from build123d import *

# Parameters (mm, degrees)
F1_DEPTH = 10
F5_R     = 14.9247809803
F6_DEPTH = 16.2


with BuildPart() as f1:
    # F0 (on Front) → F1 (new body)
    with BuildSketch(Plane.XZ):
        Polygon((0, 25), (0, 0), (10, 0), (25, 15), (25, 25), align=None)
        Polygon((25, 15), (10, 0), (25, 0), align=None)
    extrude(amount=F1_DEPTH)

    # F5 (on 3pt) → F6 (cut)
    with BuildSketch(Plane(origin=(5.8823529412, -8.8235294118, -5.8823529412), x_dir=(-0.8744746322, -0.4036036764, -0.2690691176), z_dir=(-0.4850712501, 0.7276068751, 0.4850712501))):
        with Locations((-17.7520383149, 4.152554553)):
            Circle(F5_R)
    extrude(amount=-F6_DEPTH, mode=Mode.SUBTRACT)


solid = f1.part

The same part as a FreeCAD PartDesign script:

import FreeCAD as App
import Part
import Sketcher
from FreeCAD import Vector

doc = App.newDocument("Part")
body = doc.addObject("PartDesign::Body", "Body")

# Sketch on XZ plane
sketch1 = doc.addObject("Sketcher::SketchObject", "Sketch")
body.addObject(sketch1)
sketch1.AttachmentSupport = (doc.XZ_Plane, [""])
sketch1.MapMode = "FlatFace"
sketch1.addGeometry(Part.LineSegment(Vector(0, 25, 0), Vector(0, 0, 0)), False)
sketch1.addGeometry(Part.LineSegment(Vector(0, 0, 0), Vector(25, 0, 0)), False)
sketch1.addGeometry(Part.LineSegment(Vector(25, 0, 0), Vector(25, 25, 0)), False)
sketch1.addGeometry(Part.LineSegment(Vector(25, 25, 0), Vector(0, 25, 0)), False)
sketch1.addConstraint(Sketcher.Constraint("Coincident", 0, 2, 1, 1))
sketch1.addConstraint(Sketcher.Constraint("Coincident", 1, 2, 2, 1))
sketch1.addConstraint(Sketcher.Constraint("Coincident", 2, 2, 3, 1))
sketch1.addConstraint(Sketcher.Constraint("Coincident", 3, 2, 0, 1))
sketch1.addConstraint(Sketcher.Constraint("Vertical", 0))
sketch1.addConstraint(Sketcher.Constraint("Horizontal", 1))
sketch1.addConstraint(Sketcher.Constraint("Vertical", 2))
sketch1.addConstraint(Sketcher.Constraint("Horizontal", 3))
sketch1.addConstraint(Sketcher.Constraint("Coincident", 0, 2, -1, 1))
sketch1.addConstraint(Sketcher.Constraint("Equal", 3, 0))
sketch1.addConstraint(Sketcher.Constraint("DistanceX", 1, 1, 1, 2, 25.0))
pad1 = doc.addObject("PartDesign::Pad", "Pad")
body.addObject(pad1)
pad1.Profile = sketch1
pad1.Length = 10

# Sketch on an angled plane
sketch2 = doc.addObject("Sketcher::SketchObject", "Sketch001")
body.addObject(sketch2)
sketch2.Placement = App.Placement(Vector(5.882353, -8.823529, -5.882353), App.Rotation(Vector(-0.874474632, -0.403603676, -0.269069118), Vector(0, -0.554700196, 0.832050294), Vector(-0.48507125, 0.727606875, 0.48507125), "ZXY"))
sketch2.addGeometry(Part.Circle(Vector(-18, 4, 0), Vector(0, 0, 1), 15), False)
sketch2.addConstraint(Sketcher.Constraint("Diameter", 0, 29.849562))
sketch2.addConstraint(Sketcher.Constraint("DistanceX", 0, 3, -1, 1, 17.752038))
sketch2.addConstraint(Sketcher.Constraint("DistanceY", -1, 1, 0, 3, 4.152555))
pocket1 = doc.addObject("PartDesign::Pocket", "Pocket")
body.addObject(pocket1)
pocket1.Profile = sketch2
pocket1.Length = 16.2

doc.recompute()
